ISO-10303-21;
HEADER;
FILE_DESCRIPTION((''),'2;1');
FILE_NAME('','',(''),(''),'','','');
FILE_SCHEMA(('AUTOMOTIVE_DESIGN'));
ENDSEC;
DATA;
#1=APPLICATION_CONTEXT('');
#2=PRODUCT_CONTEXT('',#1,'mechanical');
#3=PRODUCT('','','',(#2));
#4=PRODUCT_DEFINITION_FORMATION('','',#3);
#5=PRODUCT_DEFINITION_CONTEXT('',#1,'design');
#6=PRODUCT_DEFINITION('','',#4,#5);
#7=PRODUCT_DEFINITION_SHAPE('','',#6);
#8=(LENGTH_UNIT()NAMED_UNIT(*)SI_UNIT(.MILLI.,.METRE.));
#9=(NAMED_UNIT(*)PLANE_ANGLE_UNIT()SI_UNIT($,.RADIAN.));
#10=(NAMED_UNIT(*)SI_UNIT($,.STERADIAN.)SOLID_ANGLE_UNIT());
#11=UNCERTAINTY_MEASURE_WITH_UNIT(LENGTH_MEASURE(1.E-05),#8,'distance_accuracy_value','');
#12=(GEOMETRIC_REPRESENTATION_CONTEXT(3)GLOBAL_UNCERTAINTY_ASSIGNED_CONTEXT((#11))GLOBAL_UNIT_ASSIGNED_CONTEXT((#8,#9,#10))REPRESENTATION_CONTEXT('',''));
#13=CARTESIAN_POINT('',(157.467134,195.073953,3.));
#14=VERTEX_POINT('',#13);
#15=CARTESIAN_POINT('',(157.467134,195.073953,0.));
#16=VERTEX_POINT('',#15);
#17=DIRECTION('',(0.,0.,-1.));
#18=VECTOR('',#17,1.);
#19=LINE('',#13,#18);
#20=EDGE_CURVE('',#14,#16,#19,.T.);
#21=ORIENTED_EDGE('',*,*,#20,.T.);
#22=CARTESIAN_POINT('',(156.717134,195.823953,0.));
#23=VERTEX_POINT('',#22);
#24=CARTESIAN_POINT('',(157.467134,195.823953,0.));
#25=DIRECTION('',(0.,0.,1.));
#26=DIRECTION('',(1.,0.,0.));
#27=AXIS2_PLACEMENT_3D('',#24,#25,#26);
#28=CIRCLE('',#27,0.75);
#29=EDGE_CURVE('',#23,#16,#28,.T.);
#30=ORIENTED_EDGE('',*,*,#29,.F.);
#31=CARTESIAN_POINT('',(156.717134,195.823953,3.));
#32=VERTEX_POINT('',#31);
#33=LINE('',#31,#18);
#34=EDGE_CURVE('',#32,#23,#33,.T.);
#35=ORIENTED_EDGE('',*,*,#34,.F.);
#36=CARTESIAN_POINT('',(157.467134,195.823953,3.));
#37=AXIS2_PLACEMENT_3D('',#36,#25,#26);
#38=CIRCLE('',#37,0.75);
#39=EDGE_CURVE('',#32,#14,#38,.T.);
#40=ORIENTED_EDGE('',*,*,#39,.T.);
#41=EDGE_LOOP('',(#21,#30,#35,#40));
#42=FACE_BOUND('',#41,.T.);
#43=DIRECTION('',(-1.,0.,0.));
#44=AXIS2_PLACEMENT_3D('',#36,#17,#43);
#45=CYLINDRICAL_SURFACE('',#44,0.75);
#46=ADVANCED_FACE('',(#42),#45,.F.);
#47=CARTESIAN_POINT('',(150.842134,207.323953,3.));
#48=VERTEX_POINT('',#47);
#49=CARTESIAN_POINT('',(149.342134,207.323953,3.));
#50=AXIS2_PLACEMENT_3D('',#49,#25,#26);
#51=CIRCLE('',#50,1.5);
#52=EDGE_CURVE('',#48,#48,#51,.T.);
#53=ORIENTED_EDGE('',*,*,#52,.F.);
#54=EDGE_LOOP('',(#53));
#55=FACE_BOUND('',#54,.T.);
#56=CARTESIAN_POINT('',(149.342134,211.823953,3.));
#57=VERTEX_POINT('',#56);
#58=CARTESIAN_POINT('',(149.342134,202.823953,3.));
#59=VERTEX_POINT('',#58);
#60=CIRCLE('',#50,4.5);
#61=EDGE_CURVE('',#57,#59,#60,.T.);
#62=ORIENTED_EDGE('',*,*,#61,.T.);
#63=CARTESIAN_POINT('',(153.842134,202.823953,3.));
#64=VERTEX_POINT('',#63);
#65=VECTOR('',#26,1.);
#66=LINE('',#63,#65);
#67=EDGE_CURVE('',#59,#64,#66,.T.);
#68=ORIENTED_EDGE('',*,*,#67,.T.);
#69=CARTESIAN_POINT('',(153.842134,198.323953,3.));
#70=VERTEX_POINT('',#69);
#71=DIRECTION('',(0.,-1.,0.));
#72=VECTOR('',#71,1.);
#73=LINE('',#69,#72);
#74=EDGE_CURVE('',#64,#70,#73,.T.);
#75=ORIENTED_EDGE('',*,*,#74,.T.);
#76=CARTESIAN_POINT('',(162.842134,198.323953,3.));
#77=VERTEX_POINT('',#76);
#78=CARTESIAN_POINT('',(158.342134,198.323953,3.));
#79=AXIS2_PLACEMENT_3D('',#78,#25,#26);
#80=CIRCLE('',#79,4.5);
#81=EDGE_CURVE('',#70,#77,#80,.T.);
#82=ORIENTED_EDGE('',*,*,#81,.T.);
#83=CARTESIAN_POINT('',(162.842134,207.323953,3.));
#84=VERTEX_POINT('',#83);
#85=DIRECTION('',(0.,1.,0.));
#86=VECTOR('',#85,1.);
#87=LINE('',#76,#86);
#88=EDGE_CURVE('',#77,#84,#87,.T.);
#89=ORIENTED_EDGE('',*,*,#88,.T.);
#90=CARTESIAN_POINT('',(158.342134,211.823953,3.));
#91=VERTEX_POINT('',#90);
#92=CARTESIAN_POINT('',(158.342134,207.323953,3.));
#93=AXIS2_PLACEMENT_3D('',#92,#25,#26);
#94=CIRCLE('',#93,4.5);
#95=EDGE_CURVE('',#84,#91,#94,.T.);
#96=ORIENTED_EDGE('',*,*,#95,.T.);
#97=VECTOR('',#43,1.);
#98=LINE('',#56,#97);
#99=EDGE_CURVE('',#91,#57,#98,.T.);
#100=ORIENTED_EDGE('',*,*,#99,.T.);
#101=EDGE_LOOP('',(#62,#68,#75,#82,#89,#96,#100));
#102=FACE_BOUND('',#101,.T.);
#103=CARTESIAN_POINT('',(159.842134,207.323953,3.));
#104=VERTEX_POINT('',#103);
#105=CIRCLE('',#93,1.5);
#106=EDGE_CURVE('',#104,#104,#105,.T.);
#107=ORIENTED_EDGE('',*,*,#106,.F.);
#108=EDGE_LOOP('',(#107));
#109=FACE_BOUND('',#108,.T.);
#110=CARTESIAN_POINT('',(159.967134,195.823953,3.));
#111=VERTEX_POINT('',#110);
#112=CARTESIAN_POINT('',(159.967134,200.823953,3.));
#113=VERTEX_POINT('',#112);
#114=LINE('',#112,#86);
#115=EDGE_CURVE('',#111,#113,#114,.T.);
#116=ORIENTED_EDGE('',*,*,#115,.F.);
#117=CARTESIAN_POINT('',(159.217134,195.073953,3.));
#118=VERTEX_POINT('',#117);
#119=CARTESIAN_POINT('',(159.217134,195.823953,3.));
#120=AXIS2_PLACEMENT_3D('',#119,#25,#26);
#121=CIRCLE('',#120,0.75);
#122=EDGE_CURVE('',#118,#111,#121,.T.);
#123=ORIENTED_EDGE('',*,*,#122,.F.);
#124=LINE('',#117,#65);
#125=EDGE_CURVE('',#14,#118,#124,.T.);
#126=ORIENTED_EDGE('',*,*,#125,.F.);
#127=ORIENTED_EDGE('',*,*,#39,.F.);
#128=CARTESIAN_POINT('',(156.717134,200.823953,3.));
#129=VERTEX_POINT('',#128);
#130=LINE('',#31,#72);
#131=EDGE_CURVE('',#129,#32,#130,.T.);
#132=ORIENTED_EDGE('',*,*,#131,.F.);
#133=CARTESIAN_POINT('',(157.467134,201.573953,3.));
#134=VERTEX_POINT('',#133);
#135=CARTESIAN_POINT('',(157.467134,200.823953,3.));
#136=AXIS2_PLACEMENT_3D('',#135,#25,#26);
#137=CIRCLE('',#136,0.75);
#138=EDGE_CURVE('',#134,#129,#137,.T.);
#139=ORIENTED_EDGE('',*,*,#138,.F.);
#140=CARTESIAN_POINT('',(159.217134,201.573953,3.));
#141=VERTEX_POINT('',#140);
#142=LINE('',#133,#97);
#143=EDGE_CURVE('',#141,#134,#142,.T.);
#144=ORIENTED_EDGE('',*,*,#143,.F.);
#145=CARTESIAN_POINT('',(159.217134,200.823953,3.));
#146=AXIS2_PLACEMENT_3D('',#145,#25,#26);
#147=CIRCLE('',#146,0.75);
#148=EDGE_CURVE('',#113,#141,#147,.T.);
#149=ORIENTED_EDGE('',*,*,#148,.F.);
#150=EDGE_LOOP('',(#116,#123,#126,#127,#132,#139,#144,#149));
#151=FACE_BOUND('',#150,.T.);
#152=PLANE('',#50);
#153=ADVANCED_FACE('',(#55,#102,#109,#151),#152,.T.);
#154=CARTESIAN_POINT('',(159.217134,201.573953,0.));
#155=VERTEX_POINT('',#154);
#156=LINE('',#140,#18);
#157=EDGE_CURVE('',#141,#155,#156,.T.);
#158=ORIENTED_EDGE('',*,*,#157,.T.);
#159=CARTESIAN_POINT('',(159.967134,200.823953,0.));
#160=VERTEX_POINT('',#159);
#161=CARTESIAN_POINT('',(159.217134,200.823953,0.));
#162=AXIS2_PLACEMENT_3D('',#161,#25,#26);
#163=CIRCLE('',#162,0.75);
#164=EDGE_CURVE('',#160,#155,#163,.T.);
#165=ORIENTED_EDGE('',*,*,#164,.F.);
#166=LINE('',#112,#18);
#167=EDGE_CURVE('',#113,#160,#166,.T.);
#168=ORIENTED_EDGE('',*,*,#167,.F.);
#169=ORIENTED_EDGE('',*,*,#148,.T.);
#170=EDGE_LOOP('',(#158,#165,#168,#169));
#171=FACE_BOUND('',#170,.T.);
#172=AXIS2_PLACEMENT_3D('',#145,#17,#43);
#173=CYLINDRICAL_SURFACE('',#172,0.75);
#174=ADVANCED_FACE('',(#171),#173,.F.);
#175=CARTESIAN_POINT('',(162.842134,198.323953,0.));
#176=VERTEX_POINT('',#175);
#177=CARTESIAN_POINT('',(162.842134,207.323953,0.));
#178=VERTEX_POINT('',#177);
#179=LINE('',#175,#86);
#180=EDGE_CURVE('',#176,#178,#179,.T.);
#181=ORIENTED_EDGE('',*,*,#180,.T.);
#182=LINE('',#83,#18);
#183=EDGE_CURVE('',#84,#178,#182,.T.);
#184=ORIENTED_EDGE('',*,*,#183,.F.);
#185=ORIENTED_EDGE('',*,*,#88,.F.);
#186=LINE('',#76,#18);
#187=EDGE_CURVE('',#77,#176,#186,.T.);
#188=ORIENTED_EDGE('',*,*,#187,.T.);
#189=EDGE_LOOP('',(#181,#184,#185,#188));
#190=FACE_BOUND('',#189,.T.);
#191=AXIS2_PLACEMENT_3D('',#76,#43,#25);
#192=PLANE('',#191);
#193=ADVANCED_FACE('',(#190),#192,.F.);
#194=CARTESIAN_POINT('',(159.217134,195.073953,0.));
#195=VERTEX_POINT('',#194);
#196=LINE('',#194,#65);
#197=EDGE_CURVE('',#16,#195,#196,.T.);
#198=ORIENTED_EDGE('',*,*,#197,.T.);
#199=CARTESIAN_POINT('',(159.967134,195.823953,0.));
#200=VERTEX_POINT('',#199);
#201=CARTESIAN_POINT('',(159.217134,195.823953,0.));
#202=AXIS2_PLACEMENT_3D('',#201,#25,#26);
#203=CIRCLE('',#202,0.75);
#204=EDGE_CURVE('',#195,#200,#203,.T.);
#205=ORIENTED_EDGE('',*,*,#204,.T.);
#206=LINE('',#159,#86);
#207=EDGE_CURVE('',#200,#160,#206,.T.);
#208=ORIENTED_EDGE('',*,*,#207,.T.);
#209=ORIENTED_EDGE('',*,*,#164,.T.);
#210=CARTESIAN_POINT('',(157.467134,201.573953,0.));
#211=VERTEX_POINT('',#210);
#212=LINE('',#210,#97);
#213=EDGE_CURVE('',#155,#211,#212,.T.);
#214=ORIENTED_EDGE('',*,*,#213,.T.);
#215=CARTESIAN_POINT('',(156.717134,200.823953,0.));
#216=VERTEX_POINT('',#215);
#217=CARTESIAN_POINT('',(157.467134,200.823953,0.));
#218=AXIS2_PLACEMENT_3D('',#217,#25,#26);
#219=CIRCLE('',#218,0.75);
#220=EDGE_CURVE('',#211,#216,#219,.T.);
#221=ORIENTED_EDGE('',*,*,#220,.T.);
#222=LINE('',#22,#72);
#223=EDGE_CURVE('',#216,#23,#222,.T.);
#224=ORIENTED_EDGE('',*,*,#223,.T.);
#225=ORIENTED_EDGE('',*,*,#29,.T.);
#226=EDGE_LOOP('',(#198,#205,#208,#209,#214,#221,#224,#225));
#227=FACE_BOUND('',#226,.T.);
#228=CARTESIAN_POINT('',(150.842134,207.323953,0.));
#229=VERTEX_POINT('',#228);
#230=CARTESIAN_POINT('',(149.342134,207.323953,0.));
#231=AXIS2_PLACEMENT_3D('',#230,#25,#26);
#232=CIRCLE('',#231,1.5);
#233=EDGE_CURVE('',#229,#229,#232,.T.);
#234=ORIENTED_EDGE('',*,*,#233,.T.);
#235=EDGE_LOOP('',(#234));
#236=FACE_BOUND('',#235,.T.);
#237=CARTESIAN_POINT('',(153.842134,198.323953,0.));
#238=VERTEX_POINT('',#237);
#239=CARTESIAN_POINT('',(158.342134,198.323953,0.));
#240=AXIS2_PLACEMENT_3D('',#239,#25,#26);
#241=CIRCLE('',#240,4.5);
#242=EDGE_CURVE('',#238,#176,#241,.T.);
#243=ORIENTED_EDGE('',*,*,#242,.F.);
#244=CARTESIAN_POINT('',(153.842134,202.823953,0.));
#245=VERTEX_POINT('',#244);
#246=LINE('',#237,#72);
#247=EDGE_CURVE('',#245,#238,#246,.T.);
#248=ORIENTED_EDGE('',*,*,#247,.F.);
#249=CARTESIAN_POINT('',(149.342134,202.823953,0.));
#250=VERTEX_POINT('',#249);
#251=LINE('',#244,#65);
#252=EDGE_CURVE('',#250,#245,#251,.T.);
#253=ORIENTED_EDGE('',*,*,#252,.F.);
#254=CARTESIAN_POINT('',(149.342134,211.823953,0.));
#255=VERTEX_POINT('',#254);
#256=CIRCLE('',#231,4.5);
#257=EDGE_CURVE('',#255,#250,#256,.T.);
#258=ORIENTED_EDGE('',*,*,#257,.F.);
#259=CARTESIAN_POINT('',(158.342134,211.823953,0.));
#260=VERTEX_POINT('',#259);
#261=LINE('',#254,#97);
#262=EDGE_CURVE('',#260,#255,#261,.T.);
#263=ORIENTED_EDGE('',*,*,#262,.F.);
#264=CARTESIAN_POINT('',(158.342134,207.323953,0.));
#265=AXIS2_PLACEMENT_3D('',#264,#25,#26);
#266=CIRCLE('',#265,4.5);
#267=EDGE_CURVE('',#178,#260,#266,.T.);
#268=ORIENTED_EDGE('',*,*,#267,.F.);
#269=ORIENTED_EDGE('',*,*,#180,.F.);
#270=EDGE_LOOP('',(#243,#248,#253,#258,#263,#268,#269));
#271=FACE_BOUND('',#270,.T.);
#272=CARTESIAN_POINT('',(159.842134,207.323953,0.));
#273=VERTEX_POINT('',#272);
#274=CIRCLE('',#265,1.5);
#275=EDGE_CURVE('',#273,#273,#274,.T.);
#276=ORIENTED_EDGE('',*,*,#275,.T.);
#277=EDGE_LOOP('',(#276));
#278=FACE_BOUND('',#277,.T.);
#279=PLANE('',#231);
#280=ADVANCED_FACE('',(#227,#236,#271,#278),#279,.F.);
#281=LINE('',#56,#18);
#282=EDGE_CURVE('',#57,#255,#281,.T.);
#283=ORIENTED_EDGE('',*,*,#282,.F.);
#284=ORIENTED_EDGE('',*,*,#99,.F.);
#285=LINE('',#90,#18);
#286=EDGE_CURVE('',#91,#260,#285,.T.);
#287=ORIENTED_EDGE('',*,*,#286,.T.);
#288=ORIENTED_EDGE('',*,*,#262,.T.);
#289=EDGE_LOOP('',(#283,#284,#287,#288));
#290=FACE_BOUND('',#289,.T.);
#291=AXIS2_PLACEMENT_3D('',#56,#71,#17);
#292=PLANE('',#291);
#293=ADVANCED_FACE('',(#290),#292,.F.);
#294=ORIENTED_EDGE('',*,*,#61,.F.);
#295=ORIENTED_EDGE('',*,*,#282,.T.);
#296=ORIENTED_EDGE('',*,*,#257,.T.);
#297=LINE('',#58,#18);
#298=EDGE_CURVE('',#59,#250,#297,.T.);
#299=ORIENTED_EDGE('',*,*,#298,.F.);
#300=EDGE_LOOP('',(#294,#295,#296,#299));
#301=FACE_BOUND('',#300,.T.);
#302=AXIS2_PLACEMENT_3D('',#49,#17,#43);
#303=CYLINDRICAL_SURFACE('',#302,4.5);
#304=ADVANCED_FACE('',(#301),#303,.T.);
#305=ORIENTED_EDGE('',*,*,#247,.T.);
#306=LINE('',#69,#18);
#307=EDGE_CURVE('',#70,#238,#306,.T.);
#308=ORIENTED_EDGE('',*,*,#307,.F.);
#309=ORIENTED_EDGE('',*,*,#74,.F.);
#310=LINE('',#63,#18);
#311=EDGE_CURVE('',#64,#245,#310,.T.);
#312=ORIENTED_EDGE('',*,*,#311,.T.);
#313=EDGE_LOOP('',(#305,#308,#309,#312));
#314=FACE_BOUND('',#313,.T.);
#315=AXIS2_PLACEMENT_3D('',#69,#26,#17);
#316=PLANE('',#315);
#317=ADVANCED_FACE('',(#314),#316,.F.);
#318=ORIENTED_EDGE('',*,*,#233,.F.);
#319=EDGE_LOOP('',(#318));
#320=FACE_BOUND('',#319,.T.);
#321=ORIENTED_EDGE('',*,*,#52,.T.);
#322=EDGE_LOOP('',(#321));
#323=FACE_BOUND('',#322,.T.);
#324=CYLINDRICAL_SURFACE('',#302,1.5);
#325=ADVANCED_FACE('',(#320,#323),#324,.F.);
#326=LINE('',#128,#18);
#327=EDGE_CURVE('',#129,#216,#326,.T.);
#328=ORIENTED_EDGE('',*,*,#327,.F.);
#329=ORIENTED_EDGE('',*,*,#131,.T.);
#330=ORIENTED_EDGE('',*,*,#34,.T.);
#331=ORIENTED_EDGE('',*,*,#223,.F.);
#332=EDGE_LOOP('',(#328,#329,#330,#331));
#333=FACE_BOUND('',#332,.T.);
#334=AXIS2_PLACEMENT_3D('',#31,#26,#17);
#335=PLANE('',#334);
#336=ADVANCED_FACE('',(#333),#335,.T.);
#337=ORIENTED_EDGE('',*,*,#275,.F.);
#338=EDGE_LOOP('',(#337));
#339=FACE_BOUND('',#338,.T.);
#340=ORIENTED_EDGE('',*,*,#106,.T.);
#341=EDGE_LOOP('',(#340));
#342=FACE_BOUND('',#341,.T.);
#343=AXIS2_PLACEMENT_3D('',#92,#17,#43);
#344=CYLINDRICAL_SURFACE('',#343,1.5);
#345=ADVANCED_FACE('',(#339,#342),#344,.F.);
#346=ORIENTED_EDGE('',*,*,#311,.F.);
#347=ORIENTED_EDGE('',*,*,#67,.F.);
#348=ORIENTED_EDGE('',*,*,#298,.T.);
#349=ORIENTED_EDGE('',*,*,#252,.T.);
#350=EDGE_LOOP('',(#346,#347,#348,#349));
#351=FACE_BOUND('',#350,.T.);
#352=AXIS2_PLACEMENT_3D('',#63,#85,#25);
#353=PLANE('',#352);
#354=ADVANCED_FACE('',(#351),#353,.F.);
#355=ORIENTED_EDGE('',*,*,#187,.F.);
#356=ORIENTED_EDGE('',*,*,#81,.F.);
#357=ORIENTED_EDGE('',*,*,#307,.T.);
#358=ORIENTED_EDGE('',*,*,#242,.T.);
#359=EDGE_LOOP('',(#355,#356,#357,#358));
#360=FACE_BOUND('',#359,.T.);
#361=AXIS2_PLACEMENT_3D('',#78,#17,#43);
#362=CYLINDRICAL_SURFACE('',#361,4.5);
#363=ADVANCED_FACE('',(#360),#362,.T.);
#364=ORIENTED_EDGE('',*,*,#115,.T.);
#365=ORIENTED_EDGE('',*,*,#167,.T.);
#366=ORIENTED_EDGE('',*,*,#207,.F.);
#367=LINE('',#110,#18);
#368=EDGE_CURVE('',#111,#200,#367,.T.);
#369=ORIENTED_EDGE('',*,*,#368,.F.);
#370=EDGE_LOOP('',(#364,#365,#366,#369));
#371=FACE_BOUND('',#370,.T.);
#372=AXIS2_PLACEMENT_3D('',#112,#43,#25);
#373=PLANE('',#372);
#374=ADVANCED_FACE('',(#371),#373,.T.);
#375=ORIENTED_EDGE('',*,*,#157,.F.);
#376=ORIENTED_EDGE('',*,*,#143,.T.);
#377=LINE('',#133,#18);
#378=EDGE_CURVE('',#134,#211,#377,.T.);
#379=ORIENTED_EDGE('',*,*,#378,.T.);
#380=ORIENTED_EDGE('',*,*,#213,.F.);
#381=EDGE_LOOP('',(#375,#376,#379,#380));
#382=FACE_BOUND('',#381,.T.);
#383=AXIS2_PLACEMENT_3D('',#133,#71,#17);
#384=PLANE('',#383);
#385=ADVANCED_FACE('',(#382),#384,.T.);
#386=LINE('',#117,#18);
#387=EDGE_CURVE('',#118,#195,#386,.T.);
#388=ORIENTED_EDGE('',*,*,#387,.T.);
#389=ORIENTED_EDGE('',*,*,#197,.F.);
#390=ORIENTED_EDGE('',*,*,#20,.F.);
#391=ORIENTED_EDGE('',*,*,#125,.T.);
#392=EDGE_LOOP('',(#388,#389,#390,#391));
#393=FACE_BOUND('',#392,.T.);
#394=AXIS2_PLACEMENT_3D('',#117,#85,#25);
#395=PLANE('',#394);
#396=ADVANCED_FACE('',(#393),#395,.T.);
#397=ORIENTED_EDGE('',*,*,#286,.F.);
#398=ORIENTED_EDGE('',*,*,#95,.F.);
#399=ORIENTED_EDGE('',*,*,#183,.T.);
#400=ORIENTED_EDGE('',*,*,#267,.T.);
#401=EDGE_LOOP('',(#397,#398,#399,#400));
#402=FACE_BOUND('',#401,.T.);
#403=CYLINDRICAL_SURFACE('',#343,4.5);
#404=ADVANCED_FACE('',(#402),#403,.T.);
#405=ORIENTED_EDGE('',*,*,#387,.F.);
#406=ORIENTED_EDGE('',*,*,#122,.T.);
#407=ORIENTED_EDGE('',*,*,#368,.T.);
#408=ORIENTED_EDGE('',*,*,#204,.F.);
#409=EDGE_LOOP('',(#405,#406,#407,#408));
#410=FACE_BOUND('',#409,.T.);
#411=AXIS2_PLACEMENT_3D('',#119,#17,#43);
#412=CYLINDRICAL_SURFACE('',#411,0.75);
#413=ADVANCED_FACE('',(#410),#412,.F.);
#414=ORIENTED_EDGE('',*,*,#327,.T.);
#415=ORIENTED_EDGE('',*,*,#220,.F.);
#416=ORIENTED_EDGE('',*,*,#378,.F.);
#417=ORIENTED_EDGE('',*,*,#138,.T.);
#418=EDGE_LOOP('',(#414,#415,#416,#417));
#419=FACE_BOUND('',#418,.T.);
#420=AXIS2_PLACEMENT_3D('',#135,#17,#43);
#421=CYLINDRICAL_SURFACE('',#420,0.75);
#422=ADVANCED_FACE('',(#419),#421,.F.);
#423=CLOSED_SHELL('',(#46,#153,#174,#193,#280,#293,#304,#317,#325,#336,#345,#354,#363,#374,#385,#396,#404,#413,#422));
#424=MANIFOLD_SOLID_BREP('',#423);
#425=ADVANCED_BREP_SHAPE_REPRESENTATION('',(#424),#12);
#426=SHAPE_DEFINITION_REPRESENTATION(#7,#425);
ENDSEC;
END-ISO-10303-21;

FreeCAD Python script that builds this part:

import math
import FreeCAD as App
import Part
import Sketcher
Q = App.Units.Quantity

doc = App.newDocument("Part")
body = doc.addObject("PartDesign::Body", "Body")

sketch1 = body.newObject("Sketcher::SketchObject", "Sketch")
sketch1.AttachmentSupport = (doc.getObject("XY_Plane"), [""])
sketch1.MapMode = "FlatFace"
sketch1.addGeometry([
    Part.LineSegment(App.Vector(158.3, 211.8, 0), App.Vector(149.3, 211.8, 0)),
    Part.ArcOfCircle(Part.Circle(App.Vector(149.3, 207.3, 0), App.Vector(0, 0, 1), 4.5), math.radians(90), math.radians(270)),
    Part.LineSegment(App.Vector(149.3, 202.8, 0), App.Vector(153.8, 202.8, 0)),
    Part.LineSegment(App.Vector(153.8, 202.8, 0), App.Vector(153.8, 198.3, 0)),
    Part.ArcOfCircle(Part.Circle(App.Vector(158.3, 198.3, 0), App.Vector(0, 0, 1), 4.5), math.radians(180), math.radians(360)),
    Part.LineSegment(App.Vector(162.8, 198.3, 0), App.Vector(162.8, 207.3, 0)),
    Part.ArcOfCircle(Part.Circle(App.Vector(158.3, 207.3, 0), App.Vector(0, 0, 1), 4.5), math.radians(0), math.radians(90)),
    Part.LineSegment(App.Vector(156.7, 195.8, 0), App.Vector(156.7, 200.8, 0)),
    Part.ArcOfCircle(Part.Circle(App.Vector(157.5, 200.8, 0), App.Vector(0, 0, 1), 0.8), math.radians(90), math.radians(180)),
    Part.LineSegment(App.Vector(157.5, 201.6, 0), App.Vector(159.2, 201.6, 0)),
    Part.ArcOfCircle(Part.Circle(App.Vector(159.2, 200.8, 0), App.Vector(0, 0, 1), 0.8), math.radians(0), math.radians(90)),
    Part.LineSegment(App.Vector(160, 200.8, 0), App.Vector(160, 195.8, 0)),
    Part.ArcOfCircle(Part.Circle(App.Vector(159.2, 195.8, 0), App.Vector(0, 0, 1), 0.8), math.radians(-90), math.radians(0)),
    Part.LineSegment(App.Vector(159.2, 195.1, 0), App.Vector(157.5, 195.1, 0)),
    Part.ArcOfCircle(Part.Circle(App.Vector(157.5, 195.8, 0), App.Vector(0, 0, 1), 0.8), math.radians(180), math.radians(270)),
    Part.Circle(App.Vector(158.3, 207.3, 0), App.Vector(0, 0, 1), 1.5),
    Part.Circle(App.Vector(149.3, 207.3, 0), App.Vector(0, 0, 1), 1.5),
], False)
sketch1.addConstraint([
    Sketcher.Constraint("Tangent", 0, 2, 1, 1),
    Sketcher.Constraint("Tangent", 1, 2, 2, 1),
    Sketcher.Constraint("Coincident", 2, 2, 3, 1),
    Sketcher.Constraint("Tangent", 3, 2, 4, 1),
    Sketcher.Constraint("Tangent", 4, 2, 5, 1),
    Sketcher.Constraint("Tangent", 5, 2, 6, 1),
    Sketcher.Constraint("Tangent", 6, 2, 0, 1),
    Sketcher.Constraint("Tangent", 7, 2, 8, 2),
    Sketcher.Constraint("Tangent", 8, 1, 9, 1),
    Sketcher.Constraint("Tangent", 9, 2, 10, 2),
    Sketcher.Constraint("Tangent", 10, 1, 11, 1),
    Sketcher.Constraint("Tangent", 11, 2, 12, 2),
    Sketcher.Constraint("Tangent", 12, 1, 13, 1),
    Sketcher.Constraint("Tangent", 13, 2, 14, 2),
    Sketcher.Constraint("Tangent", 14, 1, 7, 1),
    Sketcher.Constraint("Horizontal", 0),
    Sketcher.Constraint("Horizontal", 2),
    Sketcher.Constraint("Vertical", 3),
    Sketcher.Constraint("Vertical", 5),
    Sketcher.Constraint("Vertical", 7),
    Sketcher.Constraint("Horizontal", 9),
    Sketcher.Constraint("Vertical", 11),
    Sketcher.Constraint("Horizontal", 13),
    Sketcher.Constraint("Coincident", 15, 3, 6, 3),
    Sketcher.Constraint("Coincident", 16, 3, 1, 3),
    Sketcher.Constraint("Equal", 1, 4),
    Sketcher.Constraint("Equal", 4, 6),
    Sketcher.Constraint("Equal", 8, 10),
    Sketcher.Constraint("Equal", 10, 12),
    Sketcher.Constraint("Equal", 12, 14),
    Sketcher.Constraint("Equal", 15, 16),
    Sketcher.Constraint("Equal", 2, 3),
    Sketcher.Constraint("Diameter", 15, Q("3 mm")),
    Sketcher.Constraint("Radius", 1, Q("4.5 mm")),
    Sketcher.Constraint("DistanceX", 0, 2, 0, 1, Q("9 mm")),
    Sketcher.Constraint("DistanceY", 7, 1, 7, 2, Q("5 mm")),
    Sketcher.Constraint("Radius", 8, Q("0.75 mm")),
    Sketcher.Constraint("DistanceY", 8, 3, 0, 2, Q("11 mm")),
    Sketcher.Constraint("DistanceX", 9, 1, 9, 2, Q("1.75 mm")),
    Sketcher.Constraint("DistanceX", 8, 3, 4, 3, Q("0.875 mm")),
    Sketcher.Constraint("DistanceX", -1, 1, 1, 3, Q("149.342134 mm")),
    Sketcher.Constraint("DistanceY", -1, 1, 1, 3, Q("207.323953 mm")),
])
pad1 = body.newObject("PartDesign::Pad", "Pad")
pad1.Profile = sketch1
pad1.Length = 3

doc.recompute()
